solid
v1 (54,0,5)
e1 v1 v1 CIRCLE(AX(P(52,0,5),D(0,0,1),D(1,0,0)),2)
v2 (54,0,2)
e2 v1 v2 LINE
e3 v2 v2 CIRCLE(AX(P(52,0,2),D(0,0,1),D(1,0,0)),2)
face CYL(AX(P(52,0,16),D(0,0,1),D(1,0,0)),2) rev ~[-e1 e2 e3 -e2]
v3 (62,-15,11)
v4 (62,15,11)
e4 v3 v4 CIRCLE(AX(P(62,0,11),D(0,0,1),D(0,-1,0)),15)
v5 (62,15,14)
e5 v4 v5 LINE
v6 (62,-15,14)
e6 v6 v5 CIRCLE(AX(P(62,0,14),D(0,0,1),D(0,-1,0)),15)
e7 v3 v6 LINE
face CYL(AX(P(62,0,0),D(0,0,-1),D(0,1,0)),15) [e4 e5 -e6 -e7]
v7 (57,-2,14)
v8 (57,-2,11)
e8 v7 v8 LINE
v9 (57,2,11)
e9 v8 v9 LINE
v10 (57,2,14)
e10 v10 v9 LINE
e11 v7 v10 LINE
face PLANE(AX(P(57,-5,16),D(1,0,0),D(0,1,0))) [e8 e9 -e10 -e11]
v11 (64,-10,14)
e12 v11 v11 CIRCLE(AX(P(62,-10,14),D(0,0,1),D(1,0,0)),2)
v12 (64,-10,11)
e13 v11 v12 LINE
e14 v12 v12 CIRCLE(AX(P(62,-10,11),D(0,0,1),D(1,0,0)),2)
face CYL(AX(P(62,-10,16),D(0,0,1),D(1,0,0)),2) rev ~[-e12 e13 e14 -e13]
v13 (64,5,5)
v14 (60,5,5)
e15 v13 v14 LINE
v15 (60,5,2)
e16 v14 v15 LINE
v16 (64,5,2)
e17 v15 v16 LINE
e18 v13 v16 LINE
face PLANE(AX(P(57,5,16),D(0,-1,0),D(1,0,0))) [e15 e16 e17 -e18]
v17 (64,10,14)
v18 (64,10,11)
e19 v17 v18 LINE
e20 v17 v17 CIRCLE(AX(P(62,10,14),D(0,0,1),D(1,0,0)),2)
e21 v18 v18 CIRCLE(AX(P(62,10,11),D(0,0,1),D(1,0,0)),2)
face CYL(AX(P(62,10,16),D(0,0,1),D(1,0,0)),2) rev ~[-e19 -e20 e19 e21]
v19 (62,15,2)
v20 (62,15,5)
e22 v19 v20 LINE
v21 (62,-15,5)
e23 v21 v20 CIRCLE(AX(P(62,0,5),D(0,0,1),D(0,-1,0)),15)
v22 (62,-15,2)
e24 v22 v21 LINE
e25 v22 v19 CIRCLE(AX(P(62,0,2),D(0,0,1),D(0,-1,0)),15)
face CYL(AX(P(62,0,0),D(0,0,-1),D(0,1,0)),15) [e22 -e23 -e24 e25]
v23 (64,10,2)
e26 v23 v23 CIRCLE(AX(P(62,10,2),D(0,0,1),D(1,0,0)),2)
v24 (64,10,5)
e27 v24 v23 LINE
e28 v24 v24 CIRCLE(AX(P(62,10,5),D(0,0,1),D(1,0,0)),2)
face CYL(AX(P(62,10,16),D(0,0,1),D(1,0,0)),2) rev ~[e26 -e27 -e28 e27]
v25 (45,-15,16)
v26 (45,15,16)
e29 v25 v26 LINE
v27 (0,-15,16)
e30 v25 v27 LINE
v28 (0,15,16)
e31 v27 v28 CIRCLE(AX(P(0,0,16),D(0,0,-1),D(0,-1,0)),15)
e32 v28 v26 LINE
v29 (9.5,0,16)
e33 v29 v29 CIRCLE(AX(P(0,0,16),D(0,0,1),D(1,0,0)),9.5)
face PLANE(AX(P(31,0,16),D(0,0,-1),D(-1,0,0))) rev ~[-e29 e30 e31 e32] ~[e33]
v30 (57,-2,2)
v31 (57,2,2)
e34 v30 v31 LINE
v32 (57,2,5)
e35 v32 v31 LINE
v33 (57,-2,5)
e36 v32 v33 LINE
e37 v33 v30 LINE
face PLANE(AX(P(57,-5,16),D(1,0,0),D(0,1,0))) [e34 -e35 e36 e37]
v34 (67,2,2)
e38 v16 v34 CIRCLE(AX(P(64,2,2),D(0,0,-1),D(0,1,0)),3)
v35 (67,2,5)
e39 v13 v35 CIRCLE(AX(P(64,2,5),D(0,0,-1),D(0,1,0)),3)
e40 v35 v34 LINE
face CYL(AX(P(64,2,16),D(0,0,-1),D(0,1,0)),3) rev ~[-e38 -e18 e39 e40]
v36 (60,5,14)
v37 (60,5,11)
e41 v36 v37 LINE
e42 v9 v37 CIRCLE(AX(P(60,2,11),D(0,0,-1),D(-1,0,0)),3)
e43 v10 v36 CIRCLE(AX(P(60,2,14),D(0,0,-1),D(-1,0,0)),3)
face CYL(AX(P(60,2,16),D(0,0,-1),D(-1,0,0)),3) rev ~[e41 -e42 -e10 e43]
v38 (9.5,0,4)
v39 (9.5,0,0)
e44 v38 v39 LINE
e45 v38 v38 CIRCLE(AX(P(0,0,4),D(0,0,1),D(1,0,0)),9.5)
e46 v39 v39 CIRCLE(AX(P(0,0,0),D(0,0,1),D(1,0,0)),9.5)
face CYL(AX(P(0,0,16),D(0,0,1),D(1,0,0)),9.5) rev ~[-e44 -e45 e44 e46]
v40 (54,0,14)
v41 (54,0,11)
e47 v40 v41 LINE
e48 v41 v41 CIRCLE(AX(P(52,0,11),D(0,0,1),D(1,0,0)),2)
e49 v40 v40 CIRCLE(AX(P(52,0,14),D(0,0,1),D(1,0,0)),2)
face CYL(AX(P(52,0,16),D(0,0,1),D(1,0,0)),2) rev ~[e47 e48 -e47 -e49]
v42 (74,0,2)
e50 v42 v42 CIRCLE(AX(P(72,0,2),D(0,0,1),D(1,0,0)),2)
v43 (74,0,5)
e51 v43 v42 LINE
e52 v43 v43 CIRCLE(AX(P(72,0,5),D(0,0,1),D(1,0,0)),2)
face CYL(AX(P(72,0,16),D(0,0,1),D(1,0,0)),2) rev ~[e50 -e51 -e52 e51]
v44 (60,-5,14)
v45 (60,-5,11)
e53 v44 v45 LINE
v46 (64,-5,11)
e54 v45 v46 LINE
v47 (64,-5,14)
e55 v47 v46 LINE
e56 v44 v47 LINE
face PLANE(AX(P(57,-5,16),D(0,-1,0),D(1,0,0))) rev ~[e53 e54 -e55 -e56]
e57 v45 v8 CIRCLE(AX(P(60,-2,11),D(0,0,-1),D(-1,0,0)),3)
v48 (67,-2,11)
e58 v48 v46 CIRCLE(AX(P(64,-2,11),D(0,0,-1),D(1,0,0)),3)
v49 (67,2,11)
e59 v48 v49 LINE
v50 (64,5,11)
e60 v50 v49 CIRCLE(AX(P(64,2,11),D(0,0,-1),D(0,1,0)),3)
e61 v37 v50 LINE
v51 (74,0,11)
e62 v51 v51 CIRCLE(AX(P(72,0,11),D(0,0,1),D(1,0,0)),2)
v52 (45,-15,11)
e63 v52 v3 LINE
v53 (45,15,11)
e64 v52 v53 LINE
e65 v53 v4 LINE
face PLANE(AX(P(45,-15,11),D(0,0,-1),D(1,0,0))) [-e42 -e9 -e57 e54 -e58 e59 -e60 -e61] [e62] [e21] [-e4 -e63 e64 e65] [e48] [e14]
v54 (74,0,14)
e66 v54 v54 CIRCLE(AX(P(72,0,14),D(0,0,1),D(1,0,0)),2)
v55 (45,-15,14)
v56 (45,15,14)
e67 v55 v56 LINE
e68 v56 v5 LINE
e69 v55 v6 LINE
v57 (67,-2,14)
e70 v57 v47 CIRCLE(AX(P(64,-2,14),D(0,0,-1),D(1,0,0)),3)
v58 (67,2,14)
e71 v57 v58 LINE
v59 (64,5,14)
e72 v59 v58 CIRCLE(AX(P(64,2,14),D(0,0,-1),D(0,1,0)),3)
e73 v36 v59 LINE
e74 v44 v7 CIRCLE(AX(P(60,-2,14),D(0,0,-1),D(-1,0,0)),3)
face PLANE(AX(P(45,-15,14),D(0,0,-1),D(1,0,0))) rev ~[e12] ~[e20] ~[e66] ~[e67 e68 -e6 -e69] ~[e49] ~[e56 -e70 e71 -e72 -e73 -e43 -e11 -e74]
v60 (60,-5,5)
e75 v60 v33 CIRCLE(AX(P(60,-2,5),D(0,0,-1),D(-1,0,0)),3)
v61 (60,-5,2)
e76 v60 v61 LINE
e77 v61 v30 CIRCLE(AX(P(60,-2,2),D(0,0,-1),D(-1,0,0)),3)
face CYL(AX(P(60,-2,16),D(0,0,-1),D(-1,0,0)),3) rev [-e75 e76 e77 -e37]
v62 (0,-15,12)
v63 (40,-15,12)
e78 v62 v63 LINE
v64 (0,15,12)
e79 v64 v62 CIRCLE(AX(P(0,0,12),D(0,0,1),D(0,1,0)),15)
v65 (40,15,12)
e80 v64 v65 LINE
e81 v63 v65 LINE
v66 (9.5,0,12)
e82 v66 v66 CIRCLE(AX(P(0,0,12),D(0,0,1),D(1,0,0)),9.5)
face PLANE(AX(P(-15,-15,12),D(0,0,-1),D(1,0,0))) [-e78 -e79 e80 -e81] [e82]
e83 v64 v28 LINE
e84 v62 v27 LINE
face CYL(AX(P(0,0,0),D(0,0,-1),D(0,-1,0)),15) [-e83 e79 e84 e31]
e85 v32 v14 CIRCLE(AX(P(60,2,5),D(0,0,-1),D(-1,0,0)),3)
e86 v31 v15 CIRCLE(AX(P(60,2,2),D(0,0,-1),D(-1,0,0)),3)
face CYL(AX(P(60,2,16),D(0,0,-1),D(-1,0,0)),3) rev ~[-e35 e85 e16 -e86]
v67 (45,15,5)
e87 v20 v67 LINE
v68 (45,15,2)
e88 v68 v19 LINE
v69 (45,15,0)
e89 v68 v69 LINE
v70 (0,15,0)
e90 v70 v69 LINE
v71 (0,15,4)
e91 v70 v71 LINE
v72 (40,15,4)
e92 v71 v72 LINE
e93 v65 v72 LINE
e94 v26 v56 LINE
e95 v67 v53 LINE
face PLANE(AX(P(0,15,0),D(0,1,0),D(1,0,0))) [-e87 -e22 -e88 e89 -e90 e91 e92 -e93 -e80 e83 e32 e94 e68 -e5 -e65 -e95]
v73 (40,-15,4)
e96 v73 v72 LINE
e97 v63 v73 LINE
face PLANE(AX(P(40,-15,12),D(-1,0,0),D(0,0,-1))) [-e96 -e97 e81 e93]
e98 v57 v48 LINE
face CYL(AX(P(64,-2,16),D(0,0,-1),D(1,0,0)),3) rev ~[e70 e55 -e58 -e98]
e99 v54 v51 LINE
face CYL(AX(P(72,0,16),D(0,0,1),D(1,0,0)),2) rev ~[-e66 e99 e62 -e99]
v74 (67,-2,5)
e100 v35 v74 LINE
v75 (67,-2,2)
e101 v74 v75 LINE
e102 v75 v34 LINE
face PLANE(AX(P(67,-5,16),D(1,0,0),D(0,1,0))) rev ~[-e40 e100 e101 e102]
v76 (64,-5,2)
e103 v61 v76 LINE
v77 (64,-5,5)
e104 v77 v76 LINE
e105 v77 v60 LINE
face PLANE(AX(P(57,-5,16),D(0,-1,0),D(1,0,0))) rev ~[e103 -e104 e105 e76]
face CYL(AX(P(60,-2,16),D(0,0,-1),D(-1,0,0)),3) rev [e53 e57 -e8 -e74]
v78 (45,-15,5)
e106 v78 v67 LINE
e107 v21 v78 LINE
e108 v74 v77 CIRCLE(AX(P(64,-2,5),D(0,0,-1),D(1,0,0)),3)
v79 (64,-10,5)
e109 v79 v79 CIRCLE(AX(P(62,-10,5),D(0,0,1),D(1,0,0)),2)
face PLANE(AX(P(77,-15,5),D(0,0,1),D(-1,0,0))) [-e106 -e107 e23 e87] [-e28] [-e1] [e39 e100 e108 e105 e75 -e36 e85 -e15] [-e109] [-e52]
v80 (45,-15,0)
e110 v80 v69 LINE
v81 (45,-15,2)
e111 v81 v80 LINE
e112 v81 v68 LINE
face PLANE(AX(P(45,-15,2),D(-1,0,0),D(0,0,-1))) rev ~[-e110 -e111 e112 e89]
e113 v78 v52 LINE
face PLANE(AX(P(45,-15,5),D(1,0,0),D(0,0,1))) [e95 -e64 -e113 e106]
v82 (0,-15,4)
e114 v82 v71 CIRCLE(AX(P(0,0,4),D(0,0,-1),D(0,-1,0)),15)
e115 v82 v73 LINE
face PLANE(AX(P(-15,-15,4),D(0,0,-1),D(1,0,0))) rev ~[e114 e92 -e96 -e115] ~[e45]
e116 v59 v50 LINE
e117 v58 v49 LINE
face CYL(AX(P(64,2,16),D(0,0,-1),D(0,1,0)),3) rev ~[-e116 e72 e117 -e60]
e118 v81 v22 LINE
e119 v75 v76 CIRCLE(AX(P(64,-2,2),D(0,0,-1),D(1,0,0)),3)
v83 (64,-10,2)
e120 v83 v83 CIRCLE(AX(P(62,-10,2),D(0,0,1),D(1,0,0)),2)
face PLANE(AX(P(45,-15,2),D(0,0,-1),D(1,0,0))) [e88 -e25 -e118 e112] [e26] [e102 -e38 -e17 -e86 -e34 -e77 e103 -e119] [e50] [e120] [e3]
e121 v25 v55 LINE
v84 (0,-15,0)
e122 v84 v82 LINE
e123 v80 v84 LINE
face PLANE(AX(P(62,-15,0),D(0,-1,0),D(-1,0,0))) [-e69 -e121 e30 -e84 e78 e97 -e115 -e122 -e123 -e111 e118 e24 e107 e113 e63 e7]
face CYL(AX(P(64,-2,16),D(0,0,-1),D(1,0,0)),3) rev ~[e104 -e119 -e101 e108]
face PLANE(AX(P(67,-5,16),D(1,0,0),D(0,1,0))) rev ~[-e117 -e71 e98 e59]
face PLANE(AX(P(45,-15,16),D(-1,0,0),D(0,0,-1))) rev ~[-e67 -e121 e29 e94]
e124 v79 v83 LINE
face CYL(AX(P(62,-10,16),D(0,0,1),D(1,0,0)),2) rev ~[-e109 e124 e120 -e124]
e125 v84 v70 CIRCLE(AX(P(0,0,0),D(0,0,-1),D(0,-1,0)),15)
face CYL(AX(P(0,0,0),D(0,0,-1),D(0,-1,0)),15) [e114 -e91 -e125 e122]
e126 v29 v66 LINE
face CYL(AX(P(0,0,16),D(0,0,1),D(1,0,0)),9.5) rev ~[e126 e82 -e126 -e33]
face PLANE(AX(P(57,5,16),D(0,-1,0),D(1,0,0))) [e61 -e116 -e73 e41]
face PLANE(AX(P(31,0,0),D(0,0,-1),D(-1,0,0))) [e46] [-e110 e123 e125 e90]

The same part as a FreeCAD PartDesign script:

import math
import FreeCAD as App
import Part
import Sketcher

V = App.Vector


def edges_at(feature, points):
    """Names of the edges that pass closest to the given points."""
    edges = feature.Shape.Edges
    near = lambda p: min(range(len(edges)), key=lambda i: edges[i].distToShape(Part.Vertex(*p))[0])
    return sorted({f"Edge{near(p) + 1}" for p in points})


def add_polygon(sketch, points):
    """Adds a closed chain of lines whose ends are joined by coincident constraints."""
    first, n = sketch.GeometryCount, len(points)
    for a, b in zip(points, points[1:] + points[:1]):
        sketch.addGeometry(Part.LineSegment(App.Vector(*a, 0), App.Vector(*b, 0)), False)
    for i in range(n):
        sketch.addConstraint(Sketcher.Constraint("Coincident", first + i, 2, first + (i + 1) % n, 1))

doc = App.newDocument("Part")
body = doc.addObject("PartDesign::Body", "Body")

# Sketch on XY plane
sketch1 = doc.addObject("Sketcher::SketchObject", "Sketch")
body.addObject(sketch1)
sketch1.AttachmentSupport = (doc.XY_Plane, [""])
sketch1.MapMode = "FlatFace"
sketch1.addGeometry([
    Part.LineSegment(V(62, 15, 0), V(0, 15, 0)),
    Part.ArcOfCircle(Part.Circle(V(0, 0, 0), V(0, 0, 1), 15), math.radians(90), math.radians(270)),
    Part.LineSegment(V(0, -15, 0), V(62, -15, 0)),
    Part.ArcOfCircle(Part.Circle(V(62, 0, 0), V(0, 0, 1), 15), math.radians(-90), math.radians(90)),
], False)
sketch1.addConstraint([
    Sketcher.Constraint("Tangent", 0, 2, 1, 1),
    Sketcher.Constraint("Tangent", 1, 2, 2, 1),
    Sketcher.Constraint("Tangent", 2, 2, 3, 1),
    Sketcher.Constraint("Tangent", 3, 2, 0, 1),
    Sketcher.Constraint("Horizontal", 0),
    Sketcher.Constraint("Horizontal", 2),
    Sketcher.Constraint("Coincident", 1, 3, -1, 1),
    Sketcher.Constraint("Radius", 1, 15.0),
    Sketcher.Constraint("DistanceX", 0, 2, 0, 1, 62.0),
])
pad1 = doc.addObject("PartDesign::Pad", "Pad")
body.addObject(pad1)
pad1.Profile = sketch1
pad1.Length = 16

# Sketch on XY plane
sketch2 = doc.addObject("Sketcher::SketchObject", "Sketch001")
body.addObject(sketch2)
sketch2.AttachmentSupport = (doc.XY_Plane, [""])
sketch2.MapMode = "FlatFace"
sketch2.AttachmentOffset = App.Placement(V(0, 0, 16), App.Rotation())
sketch2.addGeometry(Part.Circle(V(0, 0, 0), V(0, 0, 1), 9.5), False)  # 0
sketch2.addGeometry(Part.Circle(V(62, 10, 0), V(0, 0, 1), 2), False)  # 1
sketch2.addGeometry(Part.Circle(V(72, 0, 0), V(0, 0, 1), 2), False)  # 2
sketch2.addGeometry(Part.Circle(V(62, -10, 0), V(0, 0, 1), 2), False)  # 3
sketch2.addGeometry(Part.Circle(V(52, 0, 0), V(0, 0, 1), 2), False)  # 4
add_polygon(sketch2, [(57, 5), (57, -5), (67, -5), (67, 5)])  # lines 5-8
sketch2.addConstraint([
    Sketcher.Constraint("Vertical", 5),
    Sketcher.Constraint("Horizontal", 6),
    Sketcher.Constraint("Vertical", 7),
    Sketcher.Constraint("Horizontal", 8),
    Sketcher.Constraint("Coincident", 0, 3, -1, 1),
    Sketcher.Constraint("Equal", 1, 2),
    Sketcher.Constraint("Equal", 2, 3),
    Sketcher.Constraint("Equal", 3, 4),
    Sketcher.Constraint("Symmetric", 1, 3, 3, 3, -1),
    Sketcher.Constraint("PointOnObject", 2, 3, -1),
    Sketcher.Constraint("PointOnObject", 4, 3, -1),
    Sketcher.Constraint("Equal", 8, 5),
    Sketcher.Constraint("Diameter", 0, 19.0),
    Sketcher.Constraint("Diameter", 1, 4.0),
    Sketcher.Constraint("DistanceX", 6, 1, 6, 2, 10.0),
    Sketcher.Constraint("DistanceX", -1, 1, 1, 3, 62.0),
    Sketcher.Constraint("DistanceY", -1, 1, 1, 3, 10.0),
    Sketcher.Constraint("DistanceX", -1, 1, 2, 3, 72.0),
    Sketcher.Constraint("DistanceX", -1, 1, 4, 3, 52.0),
    Sketcher.Constraint("DistanceX", -1, 1, 5, 2, 57.0),
    Sketcher.Constraint("DistanceY", 5, 2, -1, 1, 5.0),
])
pocket1 = doc.addObject("PartDesign::Pocket", "Pocket")
body.addObject(pocket1)
pocket1.Profile = sketch2
pocket1.Length = 16
doc.recompute()

fillet = doc.addObject("PartDesign::Fillet", "Fillet")
body.addObject(fillet)
fillet.Base = (pocket1, edges_at(pocket1, [
    (67, 5, 8),
    (67, -5, 8),
    (57, -5, 8),
    (57, 5, 8),
]))
fillet.Radius = 3

# Sketch on XZ plane
sketch3 = doc.addObject("Sketcher::SketchObject", "Sketch002")
body.addObject(sketch3)
sketch3.AttachmentSupport = (doc.XZ_Plane, [""])
sketch3.MapMode = "FlatFace"
add_polygon(sketch3, [(-15, 4), (-15, 12), (40, 12), (40, 4)])  # lines 0-3
sketch3.addConstraint([
    Sketcher.Constraint("Vertical", 0),
    Sketcher.Constraint("Horizontal", 1),
    Sketcher.Constraint("Vertical", 2),
    Sketcher.Constraint("Horizontal", 3),
    Sketcher.Constraint("DistanceX", 1, 1, 1, 2, 55.0),
    Sketcher.Constraint("DistanceY", 0, 1, 0, 2, 8.0),
    Sketcher.Constraint("DistanceX", 0, 2, -1, 1, 15.0),
    Sketcher.Constraint("DistanceY", -1, 1, 0, 2, 12.0),
])
pocket2 = doc.addObject("PartDesign::Pocket", "Pocket001")
body.addObject(pocket2)
pocket2.Profile = sketch3
pocket2.Type = "ThroughAll"
pocket2.Midplane = True

# Sketch on XZ plane
sketch4 = doc.addObject("Sketcher::SketchObject", "Sketch003")
body.addObject(sketch4)
sketch4.AttachmentSupport = (doc.XZ_Plane, [""])
sketch4.MapMode = "FlatFace"
add_polygon(sketch4, [(45, 11), (77, 11), (77, 5), (45, 5)])  # lines 0-3
add_polygon(sketch4, [(45, 0), (45, 2), (77, 2), (77, 0)])  # lines 4-7
add_polygon(sketch4, [(45, 14), (45, 16), (77, 16), (77, 14)])  # lines 8-11
sketch4.addConstraint([
    Sketcher.Constraint("Horizontal", 0),
    Sketcher.Constraint("Vertical", 1),
    Sketcher.Constraint("Horizontal", 2),
    Sketcher.Constraint("Vertical", 3),
    Sketcher.Constraint("Vertical", 4),
    Sketcher.Constraint("Horizontal", 5),
    Sketcher.Constraint("Vertical", 6),
    Sketcher.Constraint("Horizontal", 7),
    Sketcher.Constraint("Vertical", 8),
    Sketcher.Constraint("Horizontal", 9),
    Sketcher.Constraint("Vertical", 10),
    Sketcher.Constraint("Horizontal", 11),
    Sketcher.Constraint("PointOnObject", 6, 2, -1),
    Sketcher.Constraint("Vertical", 3, 2, 4, 2),
    Sketcher.Constraint("Vertical", 1, 2, 5, 2),
    Sketcher.Constraint("Vertical", 7, 2, 8, 2),
    Sketcher.Constraint("Vertical", 6, 2, 9, 2),
    Sketcher.Constraint("Equal", 6, 8),
    Sketcher.Constraint("DistanceX", 0, 1, 0, 2, 32.0),
    Sketcher.Constraint("DistanceY", 1, 2, 1, 1, 6.0),
    Sketcher.Constraint("DistanceY", 4, 1, 4, 2, 2.0),
    Sketcher.Constraint("DistanceX", -1, 1, 0, 2, 77.0),
    Sketcher.Constraint("DistanceY", -1, 1, 0, 2, 11.0),
    Sketcher.Constraint("DistanceY", -1, 1, 8, 2, 16.0),
])
pocket3 = doc.addObject("PartDesign::Pocket", "Pocket002")
body.addObject(pocket3)
pocket3.Profile = sketch4
pocket3.Type = "ThroughAll"
pocket3.Midplane = True

doc.recompute()
